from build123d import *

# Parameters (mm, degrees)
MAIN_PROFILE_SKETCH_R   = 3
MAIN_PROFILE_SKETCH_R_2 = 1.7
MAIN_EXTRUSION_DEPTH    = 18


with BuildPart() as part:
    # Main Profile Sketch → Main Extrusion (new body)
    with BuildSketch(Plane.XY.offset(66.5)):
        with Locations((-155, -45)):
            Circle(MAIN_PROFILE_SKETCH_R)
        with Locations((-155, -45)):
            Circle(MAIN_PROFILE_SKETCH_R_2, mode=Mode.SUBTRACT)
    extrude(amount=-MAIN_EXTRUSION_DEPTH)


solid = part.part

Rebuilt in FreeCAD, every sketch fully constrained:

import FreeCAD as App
import Part
import Sketcher
from FreeCAD import Vector

doc = App.newDocument("Part")
body = doc.addObject("PartDesign::Body", "Body")

# Sketch on XY plane
sketch1 = body.newObject("Sketcher::SketchObject", "Sketch")
sketch1.AttachmentSupport = (doc.getObject("XY_Plane"), [""])
sketch1.MapMode = "FlatFace"
sketch1.AttachmentOffset = App.Placement(Vector(0, 0, 66.5), App.Rotation())
sketch1.addGeometry(Part.Circle(Vector(-155, -45, 0), Vector(0, 0, 1), 3), False)
sketch1.addGeometry(Part.Circle(Vector(-155, -45, 0), Vector(0, 0, 1), 1.7), False)
sketch1.addConstraint(Sketcher.Constraint("Coincident", 1, 3, 0, 3))
sketch1.addConstraint(Sketcher.Constraint("Diameter", 0, 6.0))
sketch1.addConstraint(Sketcher.Constraint("Diameter", 1, 3.4))
sketch1.addConstraint(Sketcher.Constraint("DistanceX", 0, 3, -1, 1, 155.0))
sketch1.addConstraint(Sketcher.Constraint("DistanceY", 0, 3, -1, 1, 45.0))
pad1 = body.newObject("PartDesign::Pad", "Pad")
pad1.Profile = sketch1
pad1.Length = 18
pad1.Reversed = True

doc.recompute()
